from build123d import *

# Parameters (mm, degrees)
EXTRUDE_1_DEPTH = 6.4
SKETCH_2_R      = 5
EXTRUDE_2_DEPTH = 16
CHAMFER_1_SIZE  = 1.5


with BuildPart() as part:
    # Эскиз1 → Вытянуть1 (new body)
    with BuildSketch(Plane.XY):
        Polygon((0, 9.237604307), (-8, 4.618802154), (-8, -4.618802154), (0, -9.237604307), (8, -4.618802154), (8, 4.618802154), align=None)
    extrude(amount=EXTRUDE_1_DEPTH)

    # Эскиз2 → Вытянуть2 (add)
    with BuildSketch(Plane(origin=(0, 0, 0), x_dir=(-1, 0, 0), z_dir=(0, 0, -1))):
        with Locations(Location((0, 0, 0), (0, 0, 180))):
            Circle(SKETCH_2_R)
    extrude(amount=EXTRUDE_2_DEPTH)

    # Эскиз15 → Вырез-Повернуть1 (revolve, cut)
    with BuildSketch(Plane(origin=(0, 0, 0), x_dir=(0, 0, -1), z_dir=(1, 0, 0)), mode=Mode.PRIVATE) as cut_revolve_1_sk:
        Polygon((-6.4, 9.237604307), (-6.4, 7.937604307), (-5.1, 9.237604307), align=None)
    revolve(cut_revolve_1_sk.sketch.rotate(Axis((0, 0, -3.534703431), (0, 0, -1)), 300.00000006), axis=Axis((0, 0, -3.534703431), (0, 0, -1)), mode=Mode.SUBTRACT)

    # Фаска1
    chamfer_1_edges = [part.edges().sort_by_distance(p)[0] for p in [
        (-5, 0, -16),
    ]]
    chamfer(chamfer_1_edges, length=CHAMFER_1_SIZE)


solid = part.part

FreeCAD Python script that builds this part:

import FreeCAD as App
import Part
import Sketcher
from FreeCAD import Vector
Q = App.Units.Quantity


def edges_at(feature, points):
    """Names of the edges that pass closest to the given points."""
    edges = feature.Shape.Edges
    near = lambda p: min(range(len(edges)), key=lambda i: edges[i].distToShape(Part.Vertex(*p))[0])
    return sorted({f"Edge{near(p) + 1}" for p in points})


def add_polygon(sketch, points):
    """Adds a closed chain of lines whose ends are joined by coincident constraints."""
    first, n = sketch.GeometryCount, len(points)
    for a, b in zip(points, points[1:] + points[:1]):
        sketch.addGeometry(Part.LineSegment(App.Vector(*a, 0), App.Vector(*b, 0)), False)
    for i in range(n):
        sketch.addConstraint(Sketcher.Constraint("Coincident", first + i, 2, first + (i + 1) % n, 1))

doc = App.newDocument("Part")
body = doc.addObject("PartDesign::Body", "Body")

# Sketch on XY plane
sketch1 = body.newObject("Sketcher::SketchObject", "Sketch")
sketch1.AttachmentSupport = (doc.getObject("XY_Plane"), [""])
sketch1.MapMode = "FlatFace"
add_polygon(sketch1, [(0, 9), (-8, 5), (-8, -5), (0, -9), (8, -5), (8, 5)])  # lines 0-5
sketch1.addConstraint([
    Sketcher.Constraint("Vertical", 1),
    Sketcher.Constraint("Vertical", 4),
    Sketcher.Constraint("Symmetric", 0, 2, 3, 2, -1, 1),
    Sketcher.Constraint("Symmetric", 2, 2, 5, 2, -1, 1),
    Sketcher.Constraint("PointOnObject", 2, 2, -2),
    Sketcher.Constraint("Parallel", 2, 5),
    Sketcher.Constraint("Horizontal", 1, 2, 3, 2),
    Sketcher.Constraint("Angle", 0, Q("-150 deg")),
    Sketcher.Constraint("DistanceX", 0, 2, -1, 1, 8.0),
    Sketcher.Constraint("DistanceY", 1, 2, 1, 1, 9.237604),
])
pad1 = body.newObject("PartDesign::Pad", "Pad")
pad1.Profile = sketch1
pad1.Length = 6.4

# Sketch on XY plane
sketch2 = body.newObject("Sketcher::SketchObject", "Sketch001")
sketch2.AttachmentSupport = (doc.getObject("XY_Plane"), [""])
sketch2.MapMode = "FlatFace"
sketch2.addGeometry(Part.Circle(Vector(0, 0, 0), Vector(0, 0, 1), 5), False)
sketch2.addConstraint([
    Sketcher.Constraint("Coincident", 0, 3, -1, 1),
    Sketcher.Constraint("Diameter", 0, 10.0),
])
pad2 = body.newObject("PartDesign::Pad", "Pad001")
pad2.Profile = sketch2
pad2.Length = 16
pad2.Reversed = True

# Sketch on YZ plane
sketch3 = body.newObject("Sketcher::SketchObject", "Sketch002")
sketch3.AttachmentSupport = (doc.getObject("YZ_Plane"), [""])
sketch3.MapMode = "FlatFace"
add_polygon(sketch3, [(9.2, 6.4), (7.9, 6.4), (9.2, 5.1)])  # lines 0-2
sketch3.addConstraint([
    Sketcher.Constraint("Horizontal", 0),
    Sketcher.Constraint("Vertical", 2),
    Sketcher.Constraint("Equal", 0, 2),
    Sketcher.Constraint("DistanceX", 0, 2, 0, 1, 1.3),
    Sketcher.Constraint("DistanceY", -1, 1, 0, 2, 6.4),
    Sketcher.Constraint("DistanceX", -1, 1, 0, 2, 7.937604),
])
groove = body.newObject("PartDesign::Groove", "Groove")
groove.Profile = sketch3
groove.ReferenceAxis = (sketch3, ["V_Axis"])
groove.Angle = 360
doc.recompute()

chamfer = body.newObject("PartDesign::Chamfer", "Chamfer")
chamfer.Base = (groove, edges_at(groove, [(-5, 0, -16)]))
chamfer.Size = 1.5

doc.recompute()
